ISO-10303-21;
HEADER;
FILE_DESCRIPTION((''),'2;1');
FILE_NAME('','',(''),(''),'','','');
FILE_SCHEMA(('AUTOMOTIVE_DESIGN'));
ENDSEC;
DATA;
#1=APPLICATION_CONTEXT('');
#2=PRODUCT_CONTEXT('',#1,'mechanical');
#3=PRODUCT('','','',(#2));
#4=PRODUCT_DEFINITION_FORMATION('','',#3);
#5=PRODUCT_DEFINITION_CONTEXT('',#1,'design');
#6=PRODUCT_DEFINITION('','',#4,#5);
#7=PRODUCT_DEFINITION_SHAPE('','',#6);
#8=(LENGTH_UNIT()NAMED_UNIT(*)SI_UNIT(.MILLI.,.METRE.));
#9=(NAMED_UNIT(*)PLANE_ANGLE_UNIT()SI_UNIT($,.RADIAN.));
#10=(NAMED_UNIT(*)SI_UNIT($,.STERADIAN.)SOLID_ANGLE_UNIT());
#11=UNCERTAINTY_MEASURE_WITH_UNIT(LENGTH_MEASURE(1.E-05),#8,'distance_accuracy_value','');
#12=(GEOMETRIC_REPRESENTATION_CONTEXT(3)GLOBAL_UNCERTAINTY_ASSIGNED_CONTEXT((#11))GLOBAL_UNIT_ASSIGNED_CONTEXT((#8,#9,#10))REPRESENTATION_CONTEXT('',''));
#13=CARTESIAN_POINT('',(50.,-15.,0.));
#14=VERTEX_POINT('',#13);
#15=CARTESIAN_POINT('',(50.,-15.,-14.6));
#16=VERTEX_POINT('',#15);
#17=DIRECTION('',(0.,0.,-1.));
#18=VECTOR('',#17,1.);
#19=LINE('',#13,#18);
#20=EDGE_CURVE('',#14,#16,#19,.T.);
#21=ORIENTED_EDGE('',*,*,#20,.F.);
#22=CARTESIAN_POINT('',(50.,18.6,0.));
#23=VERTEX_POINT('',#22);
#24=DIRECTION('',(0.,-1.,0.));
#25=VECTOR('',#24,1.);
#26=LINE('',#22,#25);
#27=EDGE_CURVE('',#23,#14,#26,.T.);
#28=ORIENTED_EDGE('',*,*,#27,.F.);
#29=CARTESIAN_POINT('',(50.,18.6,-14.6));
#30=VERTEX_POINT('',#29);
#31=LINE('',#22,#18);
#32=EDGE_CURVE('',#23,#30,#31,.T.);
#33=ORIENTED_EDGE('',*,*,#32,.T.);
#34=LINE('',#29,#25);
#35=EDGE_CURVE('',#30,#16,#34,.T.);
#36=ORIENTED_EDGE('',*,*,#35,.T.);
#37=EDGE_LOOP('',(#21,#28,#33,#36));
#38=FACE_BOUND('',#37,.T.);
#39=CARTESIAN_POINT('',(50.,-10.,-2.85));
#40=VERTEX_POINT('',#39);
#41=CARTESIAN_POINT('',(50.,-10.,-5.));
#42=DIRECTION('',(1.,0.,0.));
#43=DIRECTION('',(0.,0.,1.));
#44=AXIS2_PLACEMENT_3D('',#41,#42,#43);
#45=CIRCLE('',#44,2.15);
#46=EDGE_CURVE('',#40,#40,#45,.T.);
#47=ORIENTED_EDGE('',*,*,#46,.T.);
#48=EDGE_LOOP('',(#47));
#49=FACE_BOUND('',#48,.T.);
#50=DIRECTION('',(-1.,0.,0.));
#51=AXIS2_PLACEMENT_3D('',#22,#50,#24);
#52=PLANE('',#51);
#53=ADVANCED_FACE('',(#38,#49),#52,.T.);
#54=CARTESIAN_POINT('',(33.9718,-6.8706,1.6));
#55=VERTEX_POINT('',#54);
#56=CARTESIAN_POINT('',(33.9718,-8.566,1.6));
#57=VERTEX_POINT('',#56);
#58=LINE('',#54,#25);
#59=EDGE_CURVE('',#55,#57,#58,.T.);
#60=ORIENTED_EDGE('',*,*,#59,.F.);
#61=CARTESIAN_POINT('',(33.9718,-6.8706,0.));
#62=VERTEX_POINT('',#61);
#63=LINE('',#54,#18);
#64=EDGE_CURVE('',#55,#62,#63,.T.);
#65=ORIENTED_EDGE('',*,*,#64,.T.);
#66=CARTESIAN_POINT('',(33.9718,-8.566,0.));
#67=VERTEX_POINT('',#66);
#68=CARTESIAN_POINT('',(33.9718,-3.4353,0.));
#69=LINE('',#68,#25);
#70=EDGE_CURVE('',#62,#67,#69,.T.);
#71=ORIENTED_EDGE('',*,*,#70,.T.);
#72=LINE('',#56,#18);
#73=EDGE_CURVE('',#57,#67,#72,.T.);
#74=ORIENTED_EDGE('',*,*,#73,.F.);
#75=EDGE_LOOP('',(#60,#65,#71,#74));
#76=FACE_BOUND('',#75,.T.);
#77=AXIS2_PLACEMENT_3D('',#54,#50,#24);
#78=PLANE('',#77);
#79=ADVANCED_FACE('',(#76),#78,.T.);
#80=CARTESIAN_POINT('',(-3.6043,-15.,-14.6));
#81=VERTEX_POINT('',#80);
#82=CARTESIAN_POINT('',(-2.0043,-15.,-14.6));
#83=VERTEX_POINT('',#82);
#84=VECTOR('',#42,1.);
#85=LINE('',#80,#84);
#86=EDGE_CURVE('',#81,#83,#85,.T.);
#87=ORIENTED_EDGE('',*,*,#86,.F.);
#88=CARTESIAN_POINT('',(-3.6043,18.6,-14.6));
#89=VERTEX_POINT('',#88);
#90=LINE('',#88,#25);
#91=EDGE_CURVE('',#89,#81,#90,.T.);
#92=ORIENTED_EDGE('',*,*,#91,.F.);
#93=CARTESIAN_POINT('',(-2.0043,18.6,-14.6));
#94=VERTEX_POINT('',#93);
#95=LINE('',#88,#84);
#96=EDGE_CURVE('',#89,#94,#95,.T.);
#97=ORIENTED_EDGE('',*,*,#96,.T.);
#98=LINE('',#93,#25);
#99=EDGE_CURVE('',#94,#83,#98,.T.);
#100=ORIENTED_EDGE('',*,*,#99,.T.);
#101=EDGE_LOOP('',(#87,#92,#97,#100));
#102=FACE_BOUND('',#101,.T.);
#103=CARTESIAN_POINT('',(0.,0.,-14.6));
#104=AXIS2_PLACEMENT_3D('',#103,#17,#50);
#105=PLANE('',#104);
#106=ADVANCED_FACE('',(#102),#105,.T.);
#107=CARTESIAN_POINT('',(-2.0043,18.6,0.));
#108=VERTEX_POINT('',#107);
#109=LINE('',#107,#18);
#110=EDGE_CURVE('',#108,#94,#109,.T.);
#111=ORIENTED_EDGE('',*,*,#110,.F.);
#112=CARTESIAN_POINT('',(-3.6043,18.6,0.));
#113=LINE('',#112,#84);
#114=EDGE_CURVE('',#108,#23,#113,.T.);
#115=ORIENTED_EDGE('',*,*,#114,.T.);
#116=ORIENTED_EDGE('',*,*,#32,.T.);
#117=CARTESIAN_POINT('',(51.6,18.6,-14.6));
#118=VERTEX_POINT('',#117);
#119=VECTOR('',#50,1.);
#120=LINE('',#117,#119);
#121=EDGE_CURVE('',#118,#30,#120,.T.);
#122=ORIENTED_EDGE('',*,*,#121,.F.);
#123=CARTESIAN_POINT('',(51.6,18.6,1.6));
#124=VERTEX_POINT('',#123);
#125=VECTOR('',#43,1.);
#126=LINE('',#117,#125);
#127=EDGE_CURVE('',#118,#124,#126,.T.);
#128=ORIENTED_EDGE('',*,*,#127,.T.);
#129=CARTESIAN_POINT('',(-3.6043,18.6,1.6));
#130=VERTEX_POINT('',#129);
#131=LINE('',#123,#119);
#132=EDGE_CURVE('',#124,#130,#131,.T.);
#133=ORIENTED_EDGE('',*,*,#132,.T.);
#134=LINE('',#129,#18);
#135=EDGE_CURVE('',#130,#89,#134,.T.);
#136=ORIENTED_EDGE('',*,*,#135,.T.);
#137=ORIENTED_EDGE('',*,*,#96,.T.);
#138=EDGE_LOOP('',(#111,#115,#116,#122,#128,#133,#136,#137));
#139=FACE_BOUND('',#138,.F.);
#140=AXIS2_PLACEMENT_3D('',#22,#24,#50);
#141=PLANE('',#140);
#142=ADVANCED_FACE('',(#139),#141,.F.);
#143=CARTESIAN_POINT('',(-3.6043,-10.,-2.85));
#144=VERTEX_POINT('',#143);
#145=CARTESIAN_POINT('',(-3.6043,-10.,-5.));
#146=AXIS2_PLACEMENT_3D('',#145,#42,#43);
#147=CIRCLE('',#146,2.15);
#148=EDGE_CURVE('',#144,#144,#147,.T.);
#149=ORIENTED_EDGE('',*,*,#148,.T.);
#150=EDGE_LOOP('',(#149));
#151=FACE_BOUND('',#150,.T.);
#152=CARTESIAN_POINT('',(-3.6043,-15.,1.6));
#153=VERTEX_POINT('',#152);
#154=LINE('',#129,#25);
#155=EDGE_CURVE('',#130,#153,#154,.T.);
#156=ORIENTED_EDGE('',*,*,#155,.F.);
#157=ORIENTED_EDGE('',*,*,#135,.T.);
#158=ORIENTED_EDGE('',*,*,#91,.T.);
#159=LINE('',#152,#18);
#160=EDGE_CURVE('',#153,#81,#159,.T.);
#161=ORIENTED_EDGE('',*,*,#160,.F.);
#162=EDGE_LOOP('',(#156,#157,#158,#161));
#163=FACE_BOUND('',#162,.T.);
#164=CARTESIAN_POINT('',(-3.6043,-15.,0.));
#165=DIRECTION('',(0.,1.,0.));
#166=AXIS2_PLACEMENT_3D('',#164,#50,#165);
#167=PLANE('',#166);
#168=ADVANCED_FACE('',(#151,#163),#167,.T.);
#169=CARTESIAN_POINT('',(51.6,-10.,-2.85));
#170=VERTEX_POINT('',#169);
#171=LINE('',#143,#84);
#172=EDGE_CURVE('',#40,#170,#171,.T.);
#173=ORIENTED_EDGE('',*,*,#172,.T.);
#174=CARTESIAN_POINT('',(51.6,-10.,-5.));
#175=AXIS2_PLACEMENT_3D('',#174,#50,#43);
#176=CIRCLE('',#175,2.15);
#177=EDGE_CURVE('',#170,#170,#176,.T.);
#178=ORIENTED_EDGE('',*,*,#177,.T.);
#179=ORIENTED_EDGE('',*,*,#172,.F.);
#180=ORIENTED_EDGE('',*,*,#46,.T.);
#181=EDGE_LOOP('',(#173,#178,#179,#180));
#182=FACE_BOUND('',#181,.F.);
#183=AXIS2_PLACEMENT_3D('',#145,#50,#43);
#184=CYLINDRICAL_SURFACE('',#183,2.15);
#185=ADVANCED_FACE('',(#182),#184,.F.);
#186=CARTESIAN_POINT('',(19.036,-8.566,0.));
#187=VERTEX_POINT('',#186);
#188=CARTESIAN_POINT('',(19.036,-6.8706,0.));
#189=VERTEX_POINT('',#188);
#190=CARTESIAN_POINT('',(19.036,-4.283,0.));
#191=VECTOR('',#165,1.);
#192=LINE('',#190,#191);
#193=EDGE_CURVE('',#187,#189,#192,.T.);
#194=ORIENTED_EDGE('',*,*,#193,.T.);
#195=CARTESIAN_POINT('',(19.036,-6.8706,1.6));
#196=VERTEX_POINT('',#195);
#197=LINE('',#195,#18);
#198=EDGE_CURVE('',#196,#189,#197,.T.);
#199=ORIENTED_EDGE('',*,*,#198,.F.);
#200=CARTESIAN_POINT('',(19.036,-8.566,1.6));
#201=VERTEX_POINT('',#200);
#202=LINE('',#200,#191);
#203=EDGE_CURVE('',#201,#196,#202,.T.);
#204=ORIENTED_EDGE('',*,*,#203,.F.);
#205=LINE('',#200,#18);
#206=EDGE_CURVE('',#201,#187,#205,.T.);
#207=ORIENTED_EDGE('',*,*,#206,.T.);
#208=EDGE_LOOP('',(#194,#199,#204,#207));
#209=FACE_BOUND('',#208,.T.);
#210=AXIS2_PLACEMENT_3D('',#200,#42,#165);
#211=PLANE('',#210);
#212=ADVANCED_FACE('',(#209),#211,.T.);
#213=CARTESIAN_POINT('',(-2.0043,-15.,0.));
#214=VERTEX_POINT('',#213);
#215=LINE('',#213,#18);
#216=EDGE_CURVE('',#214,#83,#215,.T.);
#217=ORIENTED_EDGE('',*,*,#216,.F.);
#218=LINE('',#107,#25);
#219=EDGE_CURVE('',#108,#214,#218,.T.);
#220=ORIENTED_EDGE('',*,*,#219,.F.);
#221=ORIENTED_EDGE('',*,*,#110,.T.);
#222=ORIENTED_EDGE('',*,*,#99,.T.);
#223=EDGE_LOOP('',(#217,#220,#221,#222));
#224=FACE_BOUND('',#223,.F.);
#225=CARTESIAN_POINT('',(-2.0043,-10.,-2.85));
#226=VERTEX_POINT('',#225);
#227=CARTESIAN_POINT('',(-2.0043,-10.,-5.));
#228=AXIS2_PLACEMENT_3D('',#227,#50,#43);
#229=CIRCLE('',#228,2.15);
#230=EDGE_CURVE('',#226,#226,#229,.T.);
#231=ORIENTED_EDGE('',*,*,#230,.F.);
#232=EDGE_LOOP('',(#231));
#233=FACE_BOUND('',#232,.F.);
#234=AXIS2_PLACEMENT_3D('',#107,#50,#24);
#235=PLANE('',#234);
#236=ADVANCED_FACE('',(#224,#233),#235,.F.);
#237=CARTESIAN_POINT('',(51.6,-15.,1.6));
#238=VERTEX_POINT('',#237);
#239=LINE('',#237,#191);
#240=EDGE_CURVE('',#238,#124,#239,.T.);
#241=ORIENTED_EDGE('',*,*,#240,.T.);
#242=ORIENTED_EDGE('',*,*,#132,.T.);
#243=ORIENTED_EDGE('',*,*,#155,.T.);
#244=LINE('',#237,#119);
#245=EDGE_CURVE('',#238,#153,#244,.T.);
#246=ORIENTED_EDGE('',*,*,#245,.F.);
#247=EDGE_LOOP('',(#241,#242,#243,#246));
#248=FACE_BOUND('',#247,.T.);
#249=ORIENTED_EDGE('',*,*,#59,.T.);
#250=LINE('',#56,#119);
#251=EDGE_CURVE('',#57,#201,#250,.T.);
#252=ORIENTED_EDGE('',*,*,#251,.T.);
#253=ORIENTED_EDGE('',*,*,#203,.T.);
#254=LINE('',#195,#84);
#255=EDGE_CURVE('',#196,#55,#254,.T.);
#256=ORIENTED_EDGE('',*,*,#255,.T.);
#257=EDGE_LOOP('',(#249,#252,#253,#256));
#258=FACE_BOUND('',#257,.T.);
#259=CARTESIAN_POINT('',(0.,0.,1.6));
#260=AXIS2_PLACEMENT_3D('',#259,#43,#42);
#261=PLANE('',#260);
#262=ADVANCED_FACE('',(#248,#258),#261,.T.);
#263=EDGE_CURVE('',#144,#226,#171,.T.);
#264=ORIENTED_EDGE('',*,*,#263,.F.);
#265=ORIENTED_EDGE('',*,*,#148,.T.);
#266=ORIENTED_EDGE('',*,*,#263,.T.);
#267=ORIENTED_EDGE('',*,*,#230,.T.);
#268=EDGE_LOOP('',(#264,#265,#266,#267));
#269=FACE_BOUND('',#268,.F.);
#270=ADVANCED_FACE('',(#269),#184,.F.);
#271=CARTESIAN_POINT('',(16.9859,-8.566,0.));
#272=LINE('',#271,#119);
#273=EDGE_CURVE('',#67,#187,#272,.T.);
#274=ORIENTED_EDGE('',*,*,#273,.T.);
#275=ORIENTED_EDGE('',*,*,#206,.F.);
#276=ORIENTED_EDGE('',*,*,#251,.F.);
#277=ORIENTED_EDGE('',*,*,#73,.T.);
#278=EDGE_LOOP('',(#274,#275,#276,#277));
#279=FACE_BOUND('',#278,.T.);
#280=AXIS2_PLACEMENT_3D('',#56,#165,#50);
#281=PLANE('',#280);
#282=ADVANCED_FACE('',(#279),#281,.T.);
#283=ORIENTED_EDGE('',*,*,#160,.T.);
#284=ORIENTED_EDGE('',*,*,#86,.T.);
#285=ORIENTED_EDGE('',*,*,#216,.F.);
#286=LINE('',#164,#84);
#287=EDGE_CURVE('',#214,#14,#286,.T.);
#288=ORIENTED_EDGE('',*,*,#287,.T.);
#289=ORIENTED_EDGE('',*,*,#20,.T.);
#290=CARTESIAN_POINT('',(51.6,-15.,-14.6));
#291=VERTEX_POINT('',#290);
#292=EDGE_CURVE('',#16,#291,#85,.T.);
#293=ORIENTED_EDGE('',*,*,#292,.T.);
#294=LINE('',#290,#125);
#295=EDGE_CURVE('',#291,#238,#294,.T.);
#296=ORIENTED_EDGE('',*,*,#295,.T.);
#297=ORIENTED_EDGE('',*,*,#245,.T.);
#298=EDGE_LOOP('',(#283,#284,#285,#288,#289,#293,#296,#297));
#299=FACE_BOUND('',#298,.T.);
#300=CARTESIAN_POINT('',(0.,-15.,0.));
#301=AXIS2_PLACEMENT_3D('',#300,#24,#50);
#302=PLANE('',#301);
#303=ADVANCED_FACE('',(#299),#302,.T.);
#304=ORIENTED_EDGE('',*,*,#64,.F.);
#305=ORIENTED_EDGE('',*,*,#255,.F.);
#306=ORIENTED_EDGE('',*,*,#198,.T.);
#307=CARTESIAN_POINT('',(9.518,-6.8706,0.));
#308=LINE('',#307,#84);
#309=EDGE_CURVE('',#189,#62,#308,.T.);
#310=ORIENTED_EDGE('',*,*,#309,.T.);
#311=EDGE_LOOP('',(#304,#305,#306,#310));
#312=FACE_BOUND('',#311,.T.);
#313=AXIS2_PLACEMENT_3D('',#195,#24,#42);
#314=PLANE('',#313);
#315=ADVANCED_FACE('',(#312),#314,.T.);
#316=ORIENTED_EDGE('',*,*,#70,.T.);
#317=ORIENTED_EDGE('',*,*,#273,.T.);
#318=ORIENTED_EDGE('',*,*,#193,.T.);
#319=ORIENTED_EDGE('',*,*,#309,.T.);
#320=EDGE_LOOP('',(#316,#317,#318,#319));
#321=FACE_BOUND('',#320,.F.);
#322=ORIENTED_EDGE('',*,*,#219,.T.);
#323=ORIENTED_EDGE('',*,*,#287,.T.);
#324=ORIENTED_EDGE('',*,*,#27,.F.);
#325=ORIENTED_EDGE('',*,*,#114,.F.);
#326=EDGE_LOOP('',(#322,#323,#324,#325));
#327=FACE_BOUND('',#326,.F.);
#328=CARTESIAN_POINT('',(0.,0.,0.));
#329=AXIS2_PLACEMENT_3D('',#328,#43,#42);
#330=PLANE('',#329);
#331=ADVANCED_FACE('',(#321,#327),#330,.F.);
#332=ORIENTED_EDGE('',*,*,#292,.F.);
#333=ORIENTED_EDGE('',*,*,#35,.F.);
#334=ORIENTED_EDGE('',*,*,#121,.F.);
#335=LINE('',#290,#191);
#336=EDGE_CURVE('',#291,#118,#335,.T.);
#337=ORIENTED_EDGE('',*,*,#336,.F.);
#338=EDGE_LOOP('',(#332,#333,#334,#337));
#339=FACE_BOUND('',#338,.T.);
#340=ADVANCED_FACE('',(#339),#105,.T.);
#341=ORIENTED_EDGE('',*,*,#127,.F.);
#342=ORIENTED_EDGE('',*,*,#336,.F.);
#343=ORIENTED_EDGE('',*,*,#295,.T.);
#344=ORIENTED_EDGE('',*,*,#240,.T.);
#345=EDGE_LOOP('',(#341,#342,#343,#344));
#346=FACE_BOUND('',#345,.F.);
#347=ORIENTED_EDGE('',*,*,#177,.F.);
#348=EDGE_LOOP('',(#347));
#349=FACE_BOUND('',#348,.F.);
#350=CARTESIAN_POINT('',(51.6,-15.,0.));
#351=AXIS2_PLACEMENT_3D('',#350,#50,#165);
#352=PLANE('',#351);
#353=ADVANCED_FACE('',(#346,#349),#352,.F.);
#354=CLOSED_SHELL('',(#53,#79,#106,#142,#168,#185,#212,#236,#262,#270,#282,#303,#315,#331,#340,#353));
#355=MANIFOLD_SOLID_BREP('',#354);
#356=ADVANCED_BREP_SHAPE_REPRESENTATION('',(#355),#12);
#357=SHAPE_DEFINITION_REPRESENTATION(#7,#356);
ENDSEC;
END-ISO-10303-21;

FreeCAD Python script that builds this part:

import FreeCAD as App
import Part
import Sketcher
from FreeCAD import Vector

doc = App.newDocument("Part")
body = doc.addObject("PartDesign::Body", "Body")

# Sketch on XY plane
sketch1 = doc.addObject("Sketcher::SketchObject", "Sketch")
body.addObject(sketch1)
sketch1.AttachmentSupport = (doc.XY_Plane, [""])
sketch1.MapMode = "FlatFace"
sketch1.addGeometry(Part.LineSegment(Vector(52, -15, 0), Vector(52, 19, 0)), False)
sketch1.addGeometry(Part.LineSegment(Vector(52, 19, 0), Vector(-4, 19, 0)), False)
sketch1.addGeometry(Part.LineSegment(Vector(-4, 19, 0), Vector(-4, -15, 0)), False)
sketch1.addGeometry(Part.LineSegment(Vector(-4, -15, 0), Vector(52, -15, 0)), False)
sketch1.addConstraint(Sketcher.Constraint("Coincident", 0, 2, 1, 1))
sketch1.addConstraint(Sketcher.Constraint("Coincident", 1, 2, 2, 1))
sketch1.addConstraint(Sketcher.Constraint("Coincident", 2, 2, 3, 1))
sketch1.addConstraint(Sketcher.Constraint("Coincident", 3, 2, 0, 1))
sketch1.addConstraint(Sketcher.Constraint("Vertical", 0))
sketch1.addConstraint(Sketcher.Constraint("Horizontal", 1))
sketch1.addConstraint(Sketcher.Constraint("Vertical", 2))
sketch1.addConstraint(Sketcher.Constraint("Horizontal", 3))
sketch1.addConstraint(Sketcher.Constraint("DistanceY", 2, 2, -1, 1, 15.0))
sketch1.addConstraint(Sketcher.Constraint("DistanceY", 0, 1, 0, 2, 33.6))
sketch1.addConstraint(Sketcher.Constraint("DistanceX", -1, 1, 0, 2, 51.6))
sketch1.addConstraint(Sketcher.Constraint("DistanceX", 1, 2, 1, 1, 55.2043))
pad1 = doc.addObject("PartDesign::Pad", "Pad")
body.addObject(pad1)
pad1.Profile = sketch1
pad1.Length = 1.6

# Sketch on XY plane
sketch2 = doc.addObject("Sketcher::SketchObject", "Sketch001")
body.addObject(sketch2)
sketch2.AttachmentSupport = (doc.XY_Plane, [""])
sketch2.MapMode = "FlatFace"
sketch2.addGeometry(Part.LineSegment(Vector(-3.6, -15, 0), Vector(-3.6, 18.6, 0)), False)
sketch2.addGeometry(Part.LineSegment(Vector(-3.6, 18.6, 0), Vector(-2, 18.6, 0)), False)
sketch2.addGeometry(Part.LineSegment(Vector(-2, 18.6, 0), Vector(-2, -15, 0)), False)
sketch2.addGeometry(Part.LineSegment(Vector(-2, -15, 0), Vector(-3.6, -15, 0)), False)
sketch2.addGeometry(Part.LineSegment(Vector(50, -15, 0), Vector(50, 18.6, 0)), False)
sketch2.addGeometry(Part.LineSegment(Vector(50, 18.6, 0), Vector(51.6, 18.6, 0)), False)
sketch2.addGeometry(Part.LineSegment(Vector(51.6, 18.6, 0), Vector(51.6, -15, 0)), False)
sketch2.addGeometry(Part.LineSegment(Vector(51.6, -15, 0), Vector(50, -15, 0)), False)
sketch2.addConstraint(Sketcher.Constraint("Coincident", 0, 2, 1, 1))
sketch2.addConstraint(Sketcher.Constraint("Coincident", 1, 2, 2, 1))
sketch2.addConstraint(Sketcher.Constraint("Coincident", 2, 2, 3, 1))
sketch2.addConstraint(Sketcher.Constraint("Coincident", 3, 2, 0, 1))
sketch2.addConstraint(Sketcher.Constraint("Coincident", 4, 2, 5, 1))
sketch2.addConstraint(Sketcher.Constraint("Coincident", 5, 2, 6, 1))
sketch2.addConstraint(Sketcher.Constraint("Coincident", 6, 2, 7, 1))
sketch2.addConstraint(Sketcher.Constraint("Coincident", 7, 2, 4, 1))
sketch2.addConstraint(Sketcher.Constraint("Vertical", 0))
sketch2.addConstraint(Sketcher.Constraint("Horizontal", 1))
sketch2.addConstraint(Sketcher.Constraint("Vertical", 2))
sketch2.addConstraint(Sketcher.Constraint("Horizontal", 3))
sketch2.addConstraint(Sketcher.Constraint("Vertical", 4))
sketch2.addConstraint(Sketcher.Constraint("Horizontal", 5))
sketch2.addConstraint(Sketcher.Constraint("Vertical", 6))
sketch2.addConstraint(Sketcher.Constraint("Horizontal", 7))
sketch2.addConstraint(Sketcher.Constraint("Horizontal", 1, 2, 4, 2))
sketch2.addConstraint(Sketcher.Constraint("Horizontal", 3, 2, 6, 2))
sketch2.addConstraint(Sketcher.Constraint("Equal", 3, 5))
sketch2.addConstraint(Sketcher.Constraint("DistanceX", 1, 1, 1, 2, 1.6))
sketch2.addConstraint(Sketcher.Constraint("DistanceY", 0, 1, 0, 2, 33.6))
sketch2.addConstraint(Sketcher.Constraint("DistanceY", 2, 2, -1, 1, 15.0))
sketch2.addConstraint(Sketcher.Constraint("DistanceX", -1, 1, 4, 2, 50.0))
sketch2.addConstraint(Sketcher.Constraint("DistanceX", 0, 2, -1, 1, 3.6043))
pad2 = doc.addObject("PartDesign::Pad", "Pad001")
body.addObject(pad2)
pad2.Profile = sketch2
pad2.Length = 14.6
pad2.Reversed = True

# Sketch on YZ plane
sketch3 = doc.addObject("Sketcher::SketchObject", "Sketch002")
body.addObject(sketch3)
sketch3.AttachmentSupport = (doc.YZ_Plane, [""])
sketch3.MapMode = "FlatFace"
sketch3.AttachmentOffset = App.Placement(Vector(0, 0, -3.6043), App.Rotation())
sketch3.addGeometry(Part.Circle(Vector(-10, -5, 0), Vector(0, 0, 1), 2.1), False)
sketch3.addConstraint(Sketcher.Constraint("Diameter", 0, 4.3))
sketch3.addConstraint(Sketcher.Constraint("DistanceY", 0, 3, -1, 1, 5.0))
sketch3.addConstraint(Sketcher.Constraint("DistanceX", 0, 3, -1, 1, 10.0))
pocket1 = doc.addObject("PartDesign::Pocket", "Pocket")
body.addObject(pocket1)
pocket1.Profile = sketch3
pocket1.Length = 68.6
pocket1.Reversed = True

# Sketch on XY plane
sketch4 = doc.addObject("Sketcher::SketchObject", "Sketch003")
body.addObject(sketch4)
sketch4.AttachmentSupport = (doc.XY_Plane, [""])
sketch4.MapMode = "FlatFace"
sketch4.AttachmentOffset = App.Placement(Vector(0, 0, 1.6), App.Rotation())
sketch4.addGeometry(Part.LineSegment(Vector(34, -6.9, 0), Vector(19, -6.9, 0)), False)
sketch4.addGeometry(Part.LineSegment(Vector(19, -6.9, 0), Vector(19, -8.6, 0)), False)
sketch4.addGeometry(Part.LineSegment(Vector(19, -8.6, 0), Vector(34, -8.6, 0)), False)
sketch4.addGeometry(Part.LineSegment(Vector(34, -8.6, 0), Vector(34, -6.9, 0)), False)
sketch4.addConstraint(Sketcher.Constraint("Coincident", 0, 2, 1, 1))
sketch4.addConstraint(Sketcher.Constraint("Coincident", 1, 2, 2, 1))
sketch4.addConstraint(Sketcher.Constraint("Coincident", 2, 2, 3, 1))
sketch4.addConstraint(Sketcher.Constraint("Coincident", 3, 2, 0, 1))
sketch4.addConstraint(Sketcher.Constraint("Horizontal", 0))
sketch4.addConstraint(Sketcher.Constraint("Vertical", 1))
sketch4.addConstraint(Sketcher.Constraint("Horizontal", 2))
sketch4.addConstraint(Sketcher.Constraint("Vertical", 3))
sketch4.addConstraint(Sketcher.Constraint("DistanceX", 0, 2, 0, 1, 14.9358))
sketch4.addConstraint(Sketcher.Constraint("DistanceY", 1, 2, 1, 1, 1.6954))
sketch4.addConstraint(Sketcher.Constraint("DistanceX", -1, 1, 0, 2, 19.036))
sketch4.addConstraint(Sketcher.Constraint("DistanceY", 1, 2, -1, 1, 8.566))
pocket2 = doc.addObject("PartDesign::Pocket", "Pocket001")
body.addObject(pocket2)
pocket2.Profile = sketch4
pocket2.Length = 68.6

doc.recompute()
